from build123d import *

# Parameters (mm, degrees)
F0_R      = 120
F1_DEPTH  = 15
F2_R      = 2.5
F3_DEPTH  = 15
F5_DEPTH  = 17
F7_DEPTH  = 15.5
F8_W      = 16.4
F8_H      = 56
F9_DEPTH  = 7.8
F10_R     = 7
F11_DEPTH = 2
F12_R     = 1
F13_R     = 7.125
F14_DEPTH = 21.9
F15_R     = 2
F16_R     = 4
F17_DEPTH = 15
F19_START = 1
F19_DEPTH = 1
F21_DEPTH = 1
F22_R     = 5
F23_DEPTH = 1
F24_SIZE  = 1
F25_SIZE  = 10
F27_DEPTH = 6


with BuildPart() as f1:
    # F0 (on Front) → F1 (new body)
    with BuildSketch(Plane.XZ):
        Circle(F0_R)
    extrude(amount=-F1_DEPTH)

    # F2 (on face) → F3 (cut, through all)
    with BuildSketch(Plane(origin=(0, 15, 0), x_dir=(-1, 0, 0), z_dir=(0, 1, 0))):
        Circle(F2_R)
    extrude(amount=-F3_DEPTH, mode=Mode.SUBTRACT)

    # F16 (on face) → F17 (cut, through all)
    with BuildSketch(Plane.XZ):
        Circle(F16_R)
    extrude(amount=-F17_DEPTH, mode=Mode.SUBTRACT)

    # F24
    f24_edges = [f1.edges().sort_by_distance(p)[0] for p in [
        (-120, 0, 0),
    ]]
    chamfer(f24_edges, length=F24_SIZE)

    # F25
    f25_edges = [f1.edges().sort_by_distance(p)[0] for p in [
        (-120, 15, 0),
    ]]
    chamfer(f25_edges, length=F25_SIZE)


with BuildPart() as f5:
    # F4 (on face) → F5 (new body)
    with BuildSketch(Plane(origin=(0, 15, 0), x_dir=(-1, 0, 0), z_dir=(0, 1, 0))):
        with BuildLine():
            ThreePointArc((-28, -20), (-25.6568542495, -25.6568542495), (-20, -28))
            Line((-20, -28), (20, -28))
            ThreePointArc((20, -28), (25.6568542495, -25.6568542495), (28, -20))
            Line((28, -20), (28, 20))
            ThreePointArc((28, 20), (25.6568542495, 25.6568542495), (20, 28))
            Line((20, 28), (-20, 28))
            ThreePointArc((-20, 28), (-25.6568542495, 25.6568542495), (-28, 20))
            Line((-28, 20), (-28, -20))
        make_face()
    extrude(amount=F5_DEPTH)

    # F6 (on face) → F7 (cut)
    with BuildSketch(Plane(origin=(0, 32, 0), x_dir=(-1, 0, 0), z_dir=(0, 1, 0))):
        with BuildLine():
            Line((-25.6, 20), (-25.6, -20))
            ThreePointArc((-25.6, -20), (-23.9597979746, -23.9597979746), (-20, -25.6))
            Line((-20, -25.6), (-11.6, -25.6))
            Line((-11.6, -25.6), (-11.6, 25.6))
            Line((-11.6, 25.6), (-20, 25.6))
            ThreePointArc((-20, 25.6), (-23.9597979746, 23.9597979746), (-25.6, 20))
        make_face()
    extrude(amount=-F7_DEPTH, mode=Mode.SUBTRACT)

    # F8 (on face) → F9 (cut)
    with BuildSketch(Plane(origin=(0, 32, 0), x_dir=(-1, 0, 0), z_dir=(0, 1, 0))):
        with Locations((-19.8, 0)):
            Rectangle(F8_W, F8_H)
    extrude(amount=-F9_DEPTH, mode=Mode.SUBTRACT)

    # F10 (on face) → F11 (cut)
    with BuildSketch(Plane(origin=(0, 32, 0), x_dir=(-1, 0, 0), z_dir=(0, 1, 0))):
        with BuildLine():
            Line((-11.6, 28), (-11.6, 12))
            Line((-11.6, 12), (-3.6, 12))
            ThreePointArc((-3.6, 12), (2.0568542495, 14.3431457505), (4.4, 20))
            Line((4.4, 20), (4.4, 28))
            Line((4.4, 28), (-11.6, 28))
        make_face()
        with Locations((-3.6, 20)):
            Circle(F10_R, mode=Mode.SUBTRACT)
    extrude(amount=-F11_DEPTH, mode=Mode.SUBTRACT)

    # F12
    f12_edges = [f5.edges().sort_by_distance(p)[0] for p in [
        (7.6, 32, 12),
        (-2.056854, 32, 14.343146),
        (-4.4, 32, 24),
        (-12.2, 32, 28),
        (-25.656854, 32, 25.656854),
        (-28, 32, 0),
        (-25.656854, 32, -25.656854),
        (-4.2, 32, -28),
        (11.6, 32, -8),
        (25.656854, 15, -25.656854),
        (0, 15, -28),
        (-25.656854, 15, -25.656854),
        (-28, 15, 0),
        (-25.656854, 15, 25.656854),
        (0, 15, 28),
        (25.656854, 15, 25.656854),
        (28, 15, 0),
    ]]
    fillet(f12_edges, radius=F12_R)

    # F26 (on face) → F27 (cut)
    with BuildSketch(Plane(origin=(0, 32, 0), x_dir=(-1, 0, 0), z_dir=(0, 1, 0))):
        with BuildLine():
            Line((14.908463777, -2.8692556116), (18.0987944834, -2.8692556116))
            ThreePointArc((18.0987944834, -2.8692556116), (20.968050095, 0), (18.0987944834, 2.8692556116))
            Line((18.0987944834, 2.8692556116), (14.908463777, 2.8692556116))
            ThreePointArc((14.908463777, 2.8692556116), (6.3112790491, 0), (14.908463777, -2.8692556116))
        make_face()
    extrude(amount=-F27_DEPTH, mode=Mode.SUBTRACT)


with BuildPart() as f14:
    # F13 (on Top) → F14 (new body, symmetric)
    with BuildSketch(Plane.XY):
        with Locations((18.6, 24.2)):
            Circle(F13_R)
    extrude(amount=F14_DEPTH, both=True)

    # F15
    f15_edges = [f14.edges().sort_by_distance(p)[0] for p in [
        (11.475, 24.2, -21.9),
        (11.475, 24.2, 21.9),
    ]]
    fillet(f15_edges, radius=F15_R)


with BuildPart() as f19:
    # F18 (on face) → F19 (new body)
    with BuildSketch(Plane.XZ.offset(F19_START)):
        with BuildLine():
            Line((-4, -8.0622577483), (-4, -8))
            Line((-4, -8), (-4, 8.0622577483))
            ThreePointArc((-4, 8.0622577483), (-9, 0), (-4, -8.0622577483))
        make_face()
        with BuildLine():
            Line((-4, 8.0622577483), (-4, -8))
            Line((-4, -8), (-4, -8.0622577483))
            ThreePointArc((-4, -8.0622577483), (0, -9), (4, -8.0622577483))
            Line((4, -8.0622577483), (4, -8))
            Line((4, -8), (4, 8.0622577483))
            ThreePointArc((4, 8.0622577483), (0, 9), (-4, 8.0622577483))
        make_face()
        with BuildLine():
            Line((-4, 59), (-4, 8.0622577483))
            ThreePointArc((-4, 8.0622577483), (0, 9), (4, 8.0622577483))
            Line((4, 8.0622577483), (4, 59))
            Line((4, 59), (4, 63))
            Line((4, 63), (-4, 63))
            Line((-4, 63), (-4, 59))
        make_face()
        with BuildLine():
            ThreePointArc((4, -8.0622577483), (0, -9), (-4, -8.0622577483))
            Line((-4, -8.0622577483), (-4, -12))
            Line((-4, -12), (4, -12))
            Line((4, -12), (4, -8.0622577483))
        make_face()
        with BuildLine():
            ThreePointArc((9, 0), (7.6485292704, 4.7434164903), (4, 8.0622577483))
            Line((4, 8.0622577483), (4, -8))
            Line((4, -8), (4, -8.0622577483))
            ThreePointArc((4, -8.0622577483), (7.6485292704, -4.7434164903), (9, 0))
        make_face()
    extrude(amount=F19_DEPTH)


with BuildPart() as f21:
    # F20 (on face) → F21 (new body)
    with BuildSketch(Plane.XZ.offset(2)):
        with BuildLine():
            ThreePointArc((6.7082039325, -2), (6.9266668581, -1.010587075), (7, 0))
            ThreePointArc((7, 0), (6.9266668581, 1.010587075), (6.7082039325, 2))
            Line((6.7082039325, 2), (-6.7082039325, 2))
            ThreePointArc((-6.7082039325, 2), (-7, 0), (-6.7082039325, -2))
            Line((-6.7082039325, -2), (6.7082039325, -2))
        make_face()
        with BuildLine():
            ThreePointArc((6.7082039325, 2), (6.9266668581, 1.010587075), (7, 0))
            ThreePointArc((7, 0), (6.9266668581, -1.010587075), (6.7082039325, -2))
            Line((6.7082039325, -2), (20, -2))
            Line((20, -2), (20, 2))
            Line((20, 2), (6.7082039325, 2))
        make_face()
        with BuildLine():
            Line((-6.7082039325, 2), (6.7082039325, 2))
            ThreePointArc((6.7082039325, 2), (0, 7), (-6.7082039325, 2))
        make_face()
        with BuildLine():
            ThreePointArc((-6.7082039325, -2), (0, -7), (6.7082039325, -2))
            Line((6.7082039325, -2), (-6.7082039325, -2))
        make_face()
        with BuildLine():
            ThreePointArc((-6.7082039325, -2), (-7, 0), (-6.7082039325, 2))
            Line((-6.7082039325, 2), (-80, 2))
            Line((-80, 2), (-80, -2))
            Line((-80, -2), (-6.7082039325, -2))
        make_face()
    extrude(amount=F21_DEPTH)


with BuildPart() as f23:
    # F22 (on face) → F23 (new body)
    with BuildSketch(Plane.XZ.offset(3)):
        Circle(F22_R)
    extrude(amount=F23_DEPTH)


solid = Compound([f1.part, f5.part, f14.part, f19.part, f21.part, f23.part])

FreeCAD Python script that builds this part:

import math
import FreeCAD as App
import Part
import Sketcher
from FreeCAD import Vector
Q = App.Units.Quantity


def edges_at(feature, points):
    """Names of the edges that pass closest to the given points."""
    edges = feature.Shape.Edges
    near = lambda p: min(range(len(edges)), key=lambda i: edges[i].distToShape(Part.Vertex(*p))[0])
    return sorted({f"Edge{near(p) + 1}" for p in points})


def add_polygon(sketch, points):
    """Adds a closed chain of lines whose ends are joined by coincident constraints."""
    first, n = sketch.GeometryCount, len(points)
    for a, b in zip(points, points[1:] + points[:1]):
        sketch.addGeometry(Part.LineSegment(App.Vector(*a, 0), App.Vector(*b, 0)), False)
    for i in range(n):
        sketch.addConstraint(Sketcher.Constraint("Coincident", first + i, 2, first + (i + 1) % n, 1))

doc = App.newDocument("Part")
body = doc.addObject("PartDesign::Body", "Body")

# Sketch on XZ plane
sketch1 = body.newObject("Sketcher::SketchObject", "Sketch")
sketch1.AttachmentSupport = (doc.getObject("XZ_Plane"), [""])
sketch1.MapMode = "FlatFace"
sketch1.addGeometry(Part.Circle(Vector(0, 0, 0), Vector(0, 0, 1), 120), False)
sketch1.addConstraint(Sketcher.Constraint("Coincident", 0, 3, -1, 1))
sketch1.addConstraint(Sketcher.Constraint("Diameter", 0, Q("240 mm")))
pad1 = body.newObject("PartDesign::Pad", "Pad")
pad1.Profile = sketch1
pad1.Length = 15
pad1.Reversed = True

# Sketch on XZ plane
sketch2 = body.newObject("Sketcher::SketchObject", "Sketch001")
sketch2.AttachmentSupport = (doc.getObject("XZ_Plane"), [""])
sketch2.MapMode = "FlatFace"
sketch2.AttachmentOffset = App.Placement(Vector(0, 0, -15), App.Rotation())
sketch2.addGeometry(Part.Circle(Vector(0, 0, 0), Vector(0, 0, 1), 2.5), False)
sketch2.addConstraint(Sketcher.Constraint("Coincident", 0, 3, -1, 1))
sketch2.addConstraint(Sketcher.Constraint("Diameter", 0, Q("5 mm")))
pocket1 = body.newObject("PartDesign::Pocket", "Pocket")
pocket1.Profile = sketch2
pocket1.Type = "ThroughAll"
pocket1.Reversed = True

# Sketch on XZ plane
sketch3 = body.newObject("Sketcher::SketchObject", "Sketch002")
sketch3.AttachmentSupport = (doc.getObject("XZ_Plane"), [""])
sketch3.MapMode = "FlatFace"
sketch3.addGeometry(Part.Circle(Vector(0, 0, 0), Vector(0, 0, 1), 4), False)
sketch3.addConstraint(Sketcher.Constraint("Coincident", 0, 3, -1, 1))
sketch3.addConstraint(Sketcher.Constraint("Diameter", 0, Q("8 mm")))
pocket2 = body.newObject("PartDesign::Pocket", "Pocket001")
pocket2.Profile = sketch3
pocket2.Type = "ThroughAll"
doc.recompute()

chamfer = body.newObject("PartDesign::Chamfer", "Chamfer")
chamfer.Base = (pocket2, edges_at(pocket2, [(-120, 0, 0)]))
chamfer.Size = 1
doc.recompute()

chamfer2 = body.newObject("PartDesign::Chamfer", "Chamfer001")
chamfer2.Base = (chamfer, edges_at(chamfer, [(-120, 15, 0)]))
chamfer2.Size = 10
body2 = doc.addObject("PartDesign::Body", "Body001")

# Sketch on XZ plane
sketch4 = body2.newObject("Sketcher::SketchObject", "Sketch003")
sketch4.AttachmentSupport = (doc.getObject("XZ_Plane001"), [""])
sketch4.MapMode = "FlatFace"
sketch4.AttachmentOffset = App.Placement(Vector(0, 0, -15), App.Rotation())
sketch4.addGeometry(Part.ArcOfCircle(Part.Circle(Vector(20, -20, 0), Vector(0, 0, 1), 8), math.radians(-90), math.radians(0)), False)
sketch4.addGeometry(Part.LineSegment(Vector(20, -28, 0), Vector(-20, -28, 0)), False)
sketch4.addGeometry(Part.ArcOfCircle(Part.Circle(Vector(-20, -20, 0), Vector(0, 0, 1), 8), math.radians(180), math.radians(270)), False)
sketch4.addGeometry(Part.LineSegment(Vector(-28, -20, 0), Vector(-28, 20, 0)), False)
sketch4.addGeometry(Part.ArcOfCircle(Part.Circle(Vector(-20, 20, 0), Vector(0, 0, 1), 8), math.radians(90), math.radians(180)), False)
sketch4.addGeometry(Part.LineSegment(Vector(-20, 28, 0), Vector(20, 28, 0)), False)
sketch4.addGeometry(Part.ArcOfCircle(Part.Circle(Vector(20, 20, 0), Vector(0, 0, 1), 8), math.radians(0), math.radians(90)), False)
sketch4.addGeometry(Part.LineSegment(Vector(28, 20, 0), Vector(28, -20, 0)), False)
sketch4.addConstraint(Sketcher.Constraint("Tangent", 0, 1, 1, 1))
sketch4.addConstraint(Sketcher.Constraint("Tangent", 1, 2, 2, 2))
sketch4.addConstraint(Sketcher.Constraint("Tangent", 2, 1, 3, 1))
sketch4.addConstraint(Sketcher.Constraint("Tangent", 3, 2, 4, 2))
sketch4.addConstraint(Sketcher.Constraint("Tangent", 4, 1, 5, 1))
sketch4.addConstraint(Sketcher.Constraint("Tangent", 5, 2, 6, 2))
sketch4.addConstraint(Sketcher.Constraint("Tangent", 6, 1, 7, 1))
sketch4.addConstraint(Sketcher.Constraint("Tangent", 7, 2, 0, 2))
sketch4.addConstraint(Sketcher.Constraint("Horizontal", 1))
sketch4.addConstraint(Sketcher.Constraint("Vertical", 3))
sketch4.addConstraint(Sketcher.Constraint("Horizontal", 5))
sketch4.addConstraint(Sketcher.Constraint("Vertical", 7))
sketch4.addConstraint(Sketcher.Constraint("Equal", 0, 2))
sketch4.addConstraint(Sketcher.Constraint("Equal", 2, 4))
sketch4.addConstraint(Sketcher.Constraint("Equal", 4, 6))
sketch4.addConstraint(Sketcher.Constraint("Symmetric", 0, 3, 4, 3, -1, 1))
sketch4.addConstraint(Sketcher.Constraint("Equal", 5, 3))
sketch4.addConstraint(Sketcher.Constraint("Radius", 0, Q("8 mm")))
sketch4.addConstraint(Sketcher.Constraint("DistanceX", 1, 2, 1, 1, Q("40 mm")))
pad2 = body2.newObject("PartDesign::Pad", "Pad001")
pad2.Profile = sketch4
pad2.Length = 17
pad2.Reversed = True

# Sketch on XZ plane
sketch5 = body2.newObject("Sketcher::SketchObject", "Sketch004")
sketch5.AttachmentSupport = (doc.getObject("XZ_Plane001"), [""])
sketch5.MapMode = "FlatFace"
sketch5.AttachmentOffset = App.Placement(Vector(0, 0, -32), App.Rotation())
sketch5.addGeometry(Part.LineSegment(Vector(26, 20, 0), Vector(26, -20, 0)), False)
sketch5.addGeometry(Part.ArcOfCircle(Part.Circle(Vector(20, -20, 0), Vector(0, 0, 1), 6), math.radians(-90), math.radians(0)), False)
sketch5.addGeometry(Part.LineSegment(Vector(20, -26, 0), Vector(12, -26, 0)), False)
sketch5.addGeometry(Part.LineSegment(Vector(12, -26, 0), Vector(12, 26, 0)), False)
sketch5.addGeometry(Part.LineSegment(Vector(12, 26, 0), Vector(20, 26, 0)), False)
sketch5.addGeometry(Part.ArcOfCircle(Part.Circle(Vector(20, 20, 0), Vector(0, 0, 1), 6), math.radians(0), math.radians(90)), False)
sketch5.addConstraint(Sketcher.Constraint("Tangent", 0, 2, 1, 2))
sketch5.addConstraint(Sketcher.Constraint("Tangent", 1, 1, 2, 1))
sketch5.addConstraint(Sketcher.Constraint("Coincident", 2, 2, 3, 1))
sketch5.addConstraint(Sketcher.Constraint("Coincident", 3, 2, 4, 1))
sketch5.addConstraint(Sketcher.Constraint("Tangent", 4, 2, 5, 2))
sketch5.addConstraint(Sketcher.Constraint("Tangent", 5, 1, 0, 1))
sketch5.addConstraint(Sketcher.Constraint("Vertical", 0))
sketch5.addConstraint(Sketcher.Constraint("Horizontal", 2))
sketch5.addConstraint(Sketcher.Constraint("Vertical", 3))
sketch5.addConstraint(Sketcher.Constraint("Horizontal", 4))
sketch5.addConstraint(Sketcher.Constraint("Equal", 1, 5))
sketch5.addConstraint(Sketcher.Constraint("Radius", 1, Q("5.6 mm")))
sketch5.addConstraint(Sketcher.Constraint("DistanceY", 0, 2, 0, 1, Q("40 mm")))
sketch5.addConstraint(Sketcher.Constraint("DistanceX", 2, 2, 2, 1, Q("8.4 mm")))
sketch5.addConstraint(Sketcher.Constraint("DistanceX", -1, 1, 1, 3, Q("20 mm")))
sketch5.addConstraint(Sketcher.Constraint("DistanceY", 1, 3, -1, 1, Q("20 mm")))
pocket3 = body2.newObject("PartDesign::Pocket", "Pocket002")
pocket3.Profile = sketch5
pocket3.Length = 15.5
pocket3.Reversed = True

# Sketch on XZ plane
sketch6 = body2.newObject("Sketcher::SketchObject", "Sketch005")
sketch6.AttachmentSupport = (doc.getObject("XZ_Plane001"), [""])
sketch6.MapMode = "FlatFace"
sketch6.AttachmentOffset = App.Placement(Vector(0, 0, -32), App.Rotation())
add_polygon(sketch6, [(28, 28), (28, -28), (12, -28), (12, 28)])  # lines 0-3
sketch6.addConstraint(Sketcher.Constraint("Vertical", 0))
sketch6.addConstraint(Sketcher.Constraint("Horizontal", 1))
sketch6.addConstraint(Sketcher.Constraint("Vertical", 2))
sketch6.addConstraint(Sketcher.Constraint("Horizontal", 3))
sketch6.addConstraint(Sketcher.Constraint("DistanceY", 0, 2, 0, 1, Q("56 mm")))
sketch6.addConstraint(Sketcher.Constraint("DistanceX", 1, 2, 1, 1, Q("16.4 mm")))
sketch6.addConstraint(Sketcher.Constraint("DistanceX", -1, 1, 0, 2, Q("28 mm")))
sketch6.addConstraint(Sketcher.Constraint("DistanceY", 0, 2, -1, 1, Q("28 mm")))
pocket4 = body2.newObject("PartDesign::Pocket", "Pocket003")
pocket4.Profile = sketch6
pocket4.Length = 7.8
pocket4.Reversed = True

# Sketch on XZ plane
sketch7 = body2.newObject("Sketcher::SketchObject", "Sketch006")
sketch7.AttachmentSupport = (doc.getObject("XZ_Plane001"), [""])
sketch7.MapMode = "FlatFace"
sketch7.AttachmentOffset = App.Placement(Vector(0, 0, -32), App.Rotation())
sketch7.addGeometry(Part.LineSegment(Vector(12, 28, 0), Vector(12, 12, 0)), False)
sketch7.addGeometry(Part.LineSegment(Vector(12, 12, 0), Vector(4, 12, 0)), False)
sketch7.addGeometry(Part.ArcOfCircle(Part.Circle(Vector(4, 20, 0), Vector(0, 0, 1), 8), math.radians(180), math.radians(270)), False)
sketch7.addGeometry(Part.LineSegment(Vector(-4, 20, 0), Vector(-4, 28, 0)), False)
sketch7.addGeometry(Part.LineSegment(Vector(-4, 28, 0), Vector(12, 28, 0)), False)
sketch7.addGeometry(Part.Circle(Vector(4, 20, 0), Vector(0, 0, 1), 7), False)
sketch7.addConstraint(Sketcher.Constraint("Coincident", 0, 2, 1, 1))
sketch7.addConstraint(Sketcher.Constraint("Tangent", 1, 2, 2, 2))
sketch7.addConstraint(Sketcher.Constraint("Tangent", 2, 1, 3, 1))
sketch7.addConstraint(Sketcher.Constraint("Coincident", 3, 2, 4, 1))
sketch7.addConstraint(Sketcher.Constraint("Coincident", 4, 2, 0, 1))
sketch7.addConstraint(Sketcher.Constraint("Vertical", 0))
sketch7.addConstraint(Sketcher.Constraint("Horizontal", 1))
sketch7.addConstraint(Sketcher.Constraint("Vertical", 3))
sketch7.addConstraint(Sketcher.Constraint("Horizontal", 4))
sketch7.addConstraint(Sketcher.Constraint("Coincident", 5, 3, 2, 3))
sketch7.addConstraint(Sketcher.Constraint("Equal", 4, 0))
sketch7.addConstraint(Sketcher.Constraint("Diameter", 5, Q("14 mm")))
sketch7.addConstraint(Sketcher.Constraint("Radius", 2, Q("8 mm")))
sketch7.addConstraint(Sketcher.Constraint("DistanceX", 1, 2, 1, 1, Q("8 mm")))
sketch7.addConstraint(Sketcher.Constraint("DistanceY", -1, 1, 2, 3, Q("20 mm")))
sketch7.addConstraint(Sketcher.Constraint("DistanceX", -1, 1, 2, 3, Q("3.6 mm")))
pocket5 = body2.newObject("PartDesign::Pocket", "Pocket004")
pocket5.Profile = sketch7
pocket5.Length = 2
pocket5.Reversed = True
doc.recompute()

fillet = body2.newObject("PartDesign::Fillet", "Fillet")
fillet.Base = (pocket5, edges_at(pocket5, [
    (7.6, 32, 12),
    (-2.057, 32, 14.343),
    (-4.4, 32, 24),
    (-12.2, 32, 28),
    (-25.657, 32, 25.657),
    (-28, 32, 0),
    (-25.657, 32, -25.657),
    (-4.2, 32, -28),
    (11.6, 32, -8),
    (25.657, 15, -25.657),
    (0, 15, -28),
    (-25.657, 15, -25.657),
    (-28, 15, 0),
    (-25.657, 15, 25.657),
    (0, 15, 28),
    (25.657, 15, 25.657),
    (28, 15, 0),
]))
fillet.Radius = 1

# Sketch on XZ plane
sketch8 = body2.newObject("Sketcher::SketchObject", "Sketch007")
sketch8.AttachmentSupport = (doc.getObject("XZ_Plane001"), [""])
sketch8.MapMode = "FlatFace"
sketch8.AttachmentOffset = App.Placement(Vector(0, 0, -32), App.Rotation())
sketch8.addGeometry(Part.LineSegment(Vector(-14.9, -2.9, 0), Vector(-18.1, -2.9, 0)), False)
sketch8.addGeometry(Part.ArcOfCircle(Part.Circle(Vector(-18.1, 0, 0), Vector(0, 0, 1), 2.9), math.radians(90), math.radians(270)), False)
sketch8.addGeometry(Part.LineSegment(Vector(-18.1, 2.9, 0), Vector(-14.9, 2.9, 0)), False)
sketch8.addGeometry(Part.ArcOfCircle(Part.Circle(Vector(-11.1, 0, 0), Vector(0, 0, 1), 4.8), math.radians(-143), math.radians(143)), False)
sketch8.addConstraint(Sketcher.Constraint("Tangent", 0, 2, 1, 2))
sketch8.addConstraint(Sketcher.Constraint("Tangent", 1, 1, 2, 1))
sketch8.addConstraint(Sketcher.Constraint("Coincident", 2, 2, 3, 2))
sketch8.addConstraint(Sketcher.Constraint("Coincident", 3, 1, 0, 1))
sketch8.addConstraint(Sketcher.Constraint("Horizontal", 0))
sketch8.addConstraint(Sketcher.Constraint("Horizontal", 2))
sketch8.addConstraint(Sketcher.Constraint("Symmetric", 2, 2, 3, 1, -1))
sketch8.addConstraint(Sketcher.Constraint("Radius", 3, Q("4.77739 mm")))
sketch8.addConstraint(Sketcher.Constraint("Radius", 1, Q("2.869256 mm")))
sketch8.addConstraint(Sketcher.Constraint("DistanceX", 0, 2, 0, 1, Q("3.190331 mm")))
sketch8.addConstraint(Sketcher.Constraint("DistanceX", 3, 3, -1, 1, Q("11.088669 mm")))
pocket6 = body2.newObject("PartDesign::Pocket", "Pocket005")
pocket6.Profile = sketch8
pocket6.Length = 6
pocket6.Reversed = True
body3 = doc.addObject("PartDesign::Body", "Body002")

# Sketch on XY plane
sketch9 = body3.newObject("Sketcher::SketchObject", "Sketch008")
sketch9.AttachmentSupport = (doc.getObject("XY_Plane002"), [""])
sketch9.MapMode = "FlatFace"
sketch9.addGeometry(Part.Circle(Vector(19, 24, 0), Vector(0, 0, 1), 7), False)
sketch9.addConstraint(Sketcher.Constraint("Diameter", 0, Q("14.25 mm")))
sketch9.addConstraint(Sketcher.Constraint("DistanceX", -1, 1, 0, 3, Q("18.6 mm")))
sketch9.addConstraint(Sketcher.Constraint("DistanceY", -1, 1, 0, 3, Q("24.2 mm")))
pad3 = body3.newObject("PartDesign::Pad", "Pad002")
pad3.Profile = sketch9
pad3.Length = 43.8
pad3.Midplane = True
doc.recompute()

fillet2 = body3.newObject("PartDesign::Fillet", "Fillet001")
fillet2.Base = (pad3, edges_at(pad3, [(11.475, 24.2, -21.9), (11.475, 24.2, 21.9)]))
fillet2.Radius = 2
body4 = doc.addObject("PartDesign::Body", "Body003")

# Sketch on XZ plane
sketch10 = body4.newObject("Sketcher::SketchObject", "Sketch009")
sketch10.AttachmentSupport = (doc.getObject("XZ_Plane003"), [""])
sketch10.MapMode = "FlatFace"
sketch10.AttachmentOffset = App.Placement(Vector(0, 0, 1), App.Rotation())
sketch10.addGeometry(Part.LineSegment(Vector(4, 63, 0), Vector(-4, 63, 0)), False)
sketch10.addGeometry(Part.LineSegment(Vector(-4, 63, 0), Vector(-4, 8.1, 0)), False)
sketch10.addGeometry(Part.ArcOfCircle(Part.Circle(Vector(0, 0, 0), Vector(0, 0, 1), 9), math.radians(116), math.radians(244)), False)
sketch10.addGeometry(Part.LineSegment(Vector(-4, -8.1, 0), Vector(-4, -12, 0)), False)
sketch10.addGeometry(Part.LineSegment(Vector(-4, -12, 0), Vector(4, -12, 0)), False)
sketch10.addGeometry(Part.LineSegment(Vector(4, -12, 0), Vector(4, -8.1, 0)), False)
sketch10.addGeometry(Part.ArcOfCircle(Part.Circle(Vector(0, 0, 0), Vector(0, 0, 1), 9), math.radians(-64), math.radians(0)), False)
sketch10.addGeometry(Part.ArcOfCircle(Part.Circle(Vector(0, 0, 0), Vector(0, 0, 1), 9), math.radians(0), math.radians(64)), False)
sketch10.addGeometry(Part.LineSegment(Vector(4, 8.1, 0), Vector(4, 63, 0)), False)
sketch10.addConstraint(Sketcher.Constraint("Coincident", 0, 2, 1, 1))
sketch10.addConstraint(Sketcher.Constraint("Coincident", 1, 2, 2, 1))
sketch10.addConstraint(Sketcher.Constraint("Coincident", 2, 2, 3, 1))
sketch10.addConstraint(Sketcher.Constraint("Coincident", 3, 2, 4, 1))
sketch10.addConstraint(Sketcher.Constraint("Coincident", 4, 2, 5, 1))
sketch10.addConstraint(Sketcher.Constraint("Coincident", 5, 2, 6, 1))
sketch10.addConstraint(Sketcher.Constraint("Tangent", 6, 2, 7, 1))
sketch10.addConstraint(Sketcher.Constraint("Coincident", 7, 2, 8, 1))
sketch10.addConstraint(Sketcher.Constraint("Coincident", 8, 2, 0, 1))
sketch10.addConstraint(Sketcher.Constraint("Horizontal", 0))
sketch10.addConstraint(Sketcher.Constraint("Vertical", 1))
sketch10.addConstraint(Sketcher.Constraint("Vertical", 3))
sketch10.addConstraint(Sketcher.Constraint("Horizontal", 4))
sketch10.addConstraint(Sketcher.Constraint("Vertical", 5))
sketch10.addConstraint(Sketcher.Constraint("Vertical", 8))
sketch10.addConstraint(Sketcher.Constraint("Coincident", 2, 3, -1, 1))
sketch10.addConstraint(Sketcher.Constraint("Coincident", 6, 3, -1, 1))
sketch10.addConstraint(Sketcher.Constraint("Equal", 2, 6))
sketch10.addConstraint(Sketcher.Constraint("Equal", 6, 7))
sketch10.addConstraint(Sketcher.Constraint("PointOnObject", 6, 2, -1))
sketch10.addConstraint(Sketcher.Constraint("Horizontal", 2, 2, 5, 2))
sketch10.addConstraint(Sketcher.Constraint("Horizontal", 1, 2, 7, 2))
sketch10.addConstraint(Sketcher.Constraint("Vertical", 1, 2, 2, 2))
sketch10.addConstraint(Sketcher.Constraint("Radius", 2, Q("9 mm")))
sketch10.addConstraint(Sketcher.Constraint("DistanceX", 0, 2, 0, 1, Q("8 mm")))
sketch10.addConstraint(Sketcher.Constraint("DistanceY", -1, 1, 0, 2, Q("63 mm")))
sketch10.addConstraint(Sketcher.Constraint("DistanceY", 3, 2, -1, 1, Q("12 mm")))
pad4 = body4.newObject("PartDesign::Pad", "Pad003")
pad4.Profile = sketch10
pad4.Length = 1
body5 = doc.addObject("PartDesign::Body", "Body004")

# Sketch on XZ plane
sketch11 = body5.newObject("Sketcher::SketchObject", "Sketch010")
sketch11.AttachmentSupport = (doc.getObject("XZ_Plane004"), [""])
sketch11.MapMode = "FlatFace"
sketch11.AttachmentOffset = App.Placement(Vector(0, 0, 2), App.Rotation())
sketch11.addGeometry(Part.LineSegment(Vector(6.7, -2, 0), Vector(20, -2, 0)), False)
sketch11.addGeometry(Part.LineSegment(Vector(20, -2, 0), Vector(20, 2, 0)), False)
sketch11.addGeometry(Part.LineSegment(Vector(20, 2, 0), Vector(6.7, 2, 0)), False)
sketch11.addGeometry(Part.ArcOfCircle(Part.Circle(Vector(0, 0, 0), Vector(0, 0, 1), 7), math.radians(17), math.radians(163)), False)
sketch11.addGeometry(Part.LineSegment(Vector(-6.7, 2, 0), Vector(-80, 2, 0)), False)
sketch11.addGeometry(Part.LineSegment(Vector(-80, 2, 0), Vector(-80, -2, 0)), False)
sketch11.addGeometry(Part.LineSegment(Vector(-80, -2, 0), Vector(-6.7, -2, 0)), False)
sketch11.addGeometry(Part.ArcOfCircle(Part.Circle(Vector(0, 0, 0), Vector(0, 0, 1), 7), math.radians(-163), math.radians(-17)), False)
sketch11.addConstraint(Sketcher.Constraint("Coincident", 0, 2, 1, 1))
sketch11.addConstraint(Sketcher.Constraint("Coincident", 1, 2, 2, 1))
sketch11.addConstraint(Sketcher.Constraint("Coincident", 2, 2, 3, 1))
sketch11.addConstraint(Sketcher.Constraint("Coincident", 3, 2, 4, 1))
sketch11.addConstraint(Sketcher.Constraint("Coincident", 4, 2, 5, 1))
sketch11.addConstraint(Sketcher.Constraint("Coincident", 5, 2, 6, 1))
sketch11.addConstraint(Sketcher.Constraint("Coincident", 6, 2, 7, 1))
sketch11.addConstraint(Sketcher.Constraint("Coincident", 7, 2, 0, 1))
sketch11.addConstraint(Sketcher.Constraint("Horizontal", 0))
sketch11.addConstraint(Sketcher.Constraint("Vertical", 1))
sketch11.addConstraint(Sketcher.Constraint("Horizontal", 2))
sketch11.addConstraint(Sketcher.Constraint("Horizontal", 4))
sketch11.addConstraint(Sketcher.Constraint("Vertical", 5))
sketch11.addConstraint(Sketcher.Constraint("Horizontal", 6))
sketch11.addConstraint(Sketcher.Constraint("Coincident", 3, 3, -1, 1))
sketch11.addConstraint(Sketcher.Constraint("Coincident", 7, 3, -1, 1))
sketch11.addConstraint(Sketcher.Constraint("Equal", 3, 7))
sketch11.addConstraint(Sketcher.Constraint("Horizontal", 2, 2, 3, 2))
sketch11.addConstraint(Sketcher.Constraint("Horizontal", 0, 2, 5, 2))
sketch11.addConstraint(Sketcher.Constraint("Vertical", 3, 2, 6, 2))
sketch11.addConstraint(Sketcher.Constraint("Radius", 3, Q("7 mm")))
sketch11.addConstraint(Sketcher.Constraint("DistanceY", 1, 1, 1, 2, Q("4 mm")))
sketch11.addConstraint(Sketcher.Constraint("DistanceX", -1, 1, 0, 2, Q("20 mm")))
sketch11.addConstraint(Sketcher.Constraint("DistanceX", 4, 2, -1, 1, Q("80 mm")))
pad5 = body5.newObject("PartDesign::Pad", "Pad004")
pad5.Profile = sketch11
pad5.Length = 1
body6 = doc.addObject("PartDesign::Body", "Body005")

# Sketch on XZ plane
sketch12 = body6.newObject("Sketcher::SketchObject", "Sketch011")
sketch12.AttachmentSupport = (doc.getObject("XZ_Plane005"), [""])
sketch12.MapMode = "FlatFace"
sketch12.AttachmentOffset = App.Placement(Vector(0, 0, 3), App.Rotation())
sketch12.addGeometry(Part.Circle(Vector(0, 0, 0), Vector(0, 0, 1), 5), False)
sketch12.addConstraint(Sketcher.Constraint("Coincident", 0, 3, -1, 1))
sketch12.addConstraint(Sketcher.Constraint("Diameter", 0, Q("10 mm")))
pad6 = body6.newObject("PartDesign::Pad", "Pad005")
pad6.Profile = sketch12
pad6.Length = 1

doc.recompute()
